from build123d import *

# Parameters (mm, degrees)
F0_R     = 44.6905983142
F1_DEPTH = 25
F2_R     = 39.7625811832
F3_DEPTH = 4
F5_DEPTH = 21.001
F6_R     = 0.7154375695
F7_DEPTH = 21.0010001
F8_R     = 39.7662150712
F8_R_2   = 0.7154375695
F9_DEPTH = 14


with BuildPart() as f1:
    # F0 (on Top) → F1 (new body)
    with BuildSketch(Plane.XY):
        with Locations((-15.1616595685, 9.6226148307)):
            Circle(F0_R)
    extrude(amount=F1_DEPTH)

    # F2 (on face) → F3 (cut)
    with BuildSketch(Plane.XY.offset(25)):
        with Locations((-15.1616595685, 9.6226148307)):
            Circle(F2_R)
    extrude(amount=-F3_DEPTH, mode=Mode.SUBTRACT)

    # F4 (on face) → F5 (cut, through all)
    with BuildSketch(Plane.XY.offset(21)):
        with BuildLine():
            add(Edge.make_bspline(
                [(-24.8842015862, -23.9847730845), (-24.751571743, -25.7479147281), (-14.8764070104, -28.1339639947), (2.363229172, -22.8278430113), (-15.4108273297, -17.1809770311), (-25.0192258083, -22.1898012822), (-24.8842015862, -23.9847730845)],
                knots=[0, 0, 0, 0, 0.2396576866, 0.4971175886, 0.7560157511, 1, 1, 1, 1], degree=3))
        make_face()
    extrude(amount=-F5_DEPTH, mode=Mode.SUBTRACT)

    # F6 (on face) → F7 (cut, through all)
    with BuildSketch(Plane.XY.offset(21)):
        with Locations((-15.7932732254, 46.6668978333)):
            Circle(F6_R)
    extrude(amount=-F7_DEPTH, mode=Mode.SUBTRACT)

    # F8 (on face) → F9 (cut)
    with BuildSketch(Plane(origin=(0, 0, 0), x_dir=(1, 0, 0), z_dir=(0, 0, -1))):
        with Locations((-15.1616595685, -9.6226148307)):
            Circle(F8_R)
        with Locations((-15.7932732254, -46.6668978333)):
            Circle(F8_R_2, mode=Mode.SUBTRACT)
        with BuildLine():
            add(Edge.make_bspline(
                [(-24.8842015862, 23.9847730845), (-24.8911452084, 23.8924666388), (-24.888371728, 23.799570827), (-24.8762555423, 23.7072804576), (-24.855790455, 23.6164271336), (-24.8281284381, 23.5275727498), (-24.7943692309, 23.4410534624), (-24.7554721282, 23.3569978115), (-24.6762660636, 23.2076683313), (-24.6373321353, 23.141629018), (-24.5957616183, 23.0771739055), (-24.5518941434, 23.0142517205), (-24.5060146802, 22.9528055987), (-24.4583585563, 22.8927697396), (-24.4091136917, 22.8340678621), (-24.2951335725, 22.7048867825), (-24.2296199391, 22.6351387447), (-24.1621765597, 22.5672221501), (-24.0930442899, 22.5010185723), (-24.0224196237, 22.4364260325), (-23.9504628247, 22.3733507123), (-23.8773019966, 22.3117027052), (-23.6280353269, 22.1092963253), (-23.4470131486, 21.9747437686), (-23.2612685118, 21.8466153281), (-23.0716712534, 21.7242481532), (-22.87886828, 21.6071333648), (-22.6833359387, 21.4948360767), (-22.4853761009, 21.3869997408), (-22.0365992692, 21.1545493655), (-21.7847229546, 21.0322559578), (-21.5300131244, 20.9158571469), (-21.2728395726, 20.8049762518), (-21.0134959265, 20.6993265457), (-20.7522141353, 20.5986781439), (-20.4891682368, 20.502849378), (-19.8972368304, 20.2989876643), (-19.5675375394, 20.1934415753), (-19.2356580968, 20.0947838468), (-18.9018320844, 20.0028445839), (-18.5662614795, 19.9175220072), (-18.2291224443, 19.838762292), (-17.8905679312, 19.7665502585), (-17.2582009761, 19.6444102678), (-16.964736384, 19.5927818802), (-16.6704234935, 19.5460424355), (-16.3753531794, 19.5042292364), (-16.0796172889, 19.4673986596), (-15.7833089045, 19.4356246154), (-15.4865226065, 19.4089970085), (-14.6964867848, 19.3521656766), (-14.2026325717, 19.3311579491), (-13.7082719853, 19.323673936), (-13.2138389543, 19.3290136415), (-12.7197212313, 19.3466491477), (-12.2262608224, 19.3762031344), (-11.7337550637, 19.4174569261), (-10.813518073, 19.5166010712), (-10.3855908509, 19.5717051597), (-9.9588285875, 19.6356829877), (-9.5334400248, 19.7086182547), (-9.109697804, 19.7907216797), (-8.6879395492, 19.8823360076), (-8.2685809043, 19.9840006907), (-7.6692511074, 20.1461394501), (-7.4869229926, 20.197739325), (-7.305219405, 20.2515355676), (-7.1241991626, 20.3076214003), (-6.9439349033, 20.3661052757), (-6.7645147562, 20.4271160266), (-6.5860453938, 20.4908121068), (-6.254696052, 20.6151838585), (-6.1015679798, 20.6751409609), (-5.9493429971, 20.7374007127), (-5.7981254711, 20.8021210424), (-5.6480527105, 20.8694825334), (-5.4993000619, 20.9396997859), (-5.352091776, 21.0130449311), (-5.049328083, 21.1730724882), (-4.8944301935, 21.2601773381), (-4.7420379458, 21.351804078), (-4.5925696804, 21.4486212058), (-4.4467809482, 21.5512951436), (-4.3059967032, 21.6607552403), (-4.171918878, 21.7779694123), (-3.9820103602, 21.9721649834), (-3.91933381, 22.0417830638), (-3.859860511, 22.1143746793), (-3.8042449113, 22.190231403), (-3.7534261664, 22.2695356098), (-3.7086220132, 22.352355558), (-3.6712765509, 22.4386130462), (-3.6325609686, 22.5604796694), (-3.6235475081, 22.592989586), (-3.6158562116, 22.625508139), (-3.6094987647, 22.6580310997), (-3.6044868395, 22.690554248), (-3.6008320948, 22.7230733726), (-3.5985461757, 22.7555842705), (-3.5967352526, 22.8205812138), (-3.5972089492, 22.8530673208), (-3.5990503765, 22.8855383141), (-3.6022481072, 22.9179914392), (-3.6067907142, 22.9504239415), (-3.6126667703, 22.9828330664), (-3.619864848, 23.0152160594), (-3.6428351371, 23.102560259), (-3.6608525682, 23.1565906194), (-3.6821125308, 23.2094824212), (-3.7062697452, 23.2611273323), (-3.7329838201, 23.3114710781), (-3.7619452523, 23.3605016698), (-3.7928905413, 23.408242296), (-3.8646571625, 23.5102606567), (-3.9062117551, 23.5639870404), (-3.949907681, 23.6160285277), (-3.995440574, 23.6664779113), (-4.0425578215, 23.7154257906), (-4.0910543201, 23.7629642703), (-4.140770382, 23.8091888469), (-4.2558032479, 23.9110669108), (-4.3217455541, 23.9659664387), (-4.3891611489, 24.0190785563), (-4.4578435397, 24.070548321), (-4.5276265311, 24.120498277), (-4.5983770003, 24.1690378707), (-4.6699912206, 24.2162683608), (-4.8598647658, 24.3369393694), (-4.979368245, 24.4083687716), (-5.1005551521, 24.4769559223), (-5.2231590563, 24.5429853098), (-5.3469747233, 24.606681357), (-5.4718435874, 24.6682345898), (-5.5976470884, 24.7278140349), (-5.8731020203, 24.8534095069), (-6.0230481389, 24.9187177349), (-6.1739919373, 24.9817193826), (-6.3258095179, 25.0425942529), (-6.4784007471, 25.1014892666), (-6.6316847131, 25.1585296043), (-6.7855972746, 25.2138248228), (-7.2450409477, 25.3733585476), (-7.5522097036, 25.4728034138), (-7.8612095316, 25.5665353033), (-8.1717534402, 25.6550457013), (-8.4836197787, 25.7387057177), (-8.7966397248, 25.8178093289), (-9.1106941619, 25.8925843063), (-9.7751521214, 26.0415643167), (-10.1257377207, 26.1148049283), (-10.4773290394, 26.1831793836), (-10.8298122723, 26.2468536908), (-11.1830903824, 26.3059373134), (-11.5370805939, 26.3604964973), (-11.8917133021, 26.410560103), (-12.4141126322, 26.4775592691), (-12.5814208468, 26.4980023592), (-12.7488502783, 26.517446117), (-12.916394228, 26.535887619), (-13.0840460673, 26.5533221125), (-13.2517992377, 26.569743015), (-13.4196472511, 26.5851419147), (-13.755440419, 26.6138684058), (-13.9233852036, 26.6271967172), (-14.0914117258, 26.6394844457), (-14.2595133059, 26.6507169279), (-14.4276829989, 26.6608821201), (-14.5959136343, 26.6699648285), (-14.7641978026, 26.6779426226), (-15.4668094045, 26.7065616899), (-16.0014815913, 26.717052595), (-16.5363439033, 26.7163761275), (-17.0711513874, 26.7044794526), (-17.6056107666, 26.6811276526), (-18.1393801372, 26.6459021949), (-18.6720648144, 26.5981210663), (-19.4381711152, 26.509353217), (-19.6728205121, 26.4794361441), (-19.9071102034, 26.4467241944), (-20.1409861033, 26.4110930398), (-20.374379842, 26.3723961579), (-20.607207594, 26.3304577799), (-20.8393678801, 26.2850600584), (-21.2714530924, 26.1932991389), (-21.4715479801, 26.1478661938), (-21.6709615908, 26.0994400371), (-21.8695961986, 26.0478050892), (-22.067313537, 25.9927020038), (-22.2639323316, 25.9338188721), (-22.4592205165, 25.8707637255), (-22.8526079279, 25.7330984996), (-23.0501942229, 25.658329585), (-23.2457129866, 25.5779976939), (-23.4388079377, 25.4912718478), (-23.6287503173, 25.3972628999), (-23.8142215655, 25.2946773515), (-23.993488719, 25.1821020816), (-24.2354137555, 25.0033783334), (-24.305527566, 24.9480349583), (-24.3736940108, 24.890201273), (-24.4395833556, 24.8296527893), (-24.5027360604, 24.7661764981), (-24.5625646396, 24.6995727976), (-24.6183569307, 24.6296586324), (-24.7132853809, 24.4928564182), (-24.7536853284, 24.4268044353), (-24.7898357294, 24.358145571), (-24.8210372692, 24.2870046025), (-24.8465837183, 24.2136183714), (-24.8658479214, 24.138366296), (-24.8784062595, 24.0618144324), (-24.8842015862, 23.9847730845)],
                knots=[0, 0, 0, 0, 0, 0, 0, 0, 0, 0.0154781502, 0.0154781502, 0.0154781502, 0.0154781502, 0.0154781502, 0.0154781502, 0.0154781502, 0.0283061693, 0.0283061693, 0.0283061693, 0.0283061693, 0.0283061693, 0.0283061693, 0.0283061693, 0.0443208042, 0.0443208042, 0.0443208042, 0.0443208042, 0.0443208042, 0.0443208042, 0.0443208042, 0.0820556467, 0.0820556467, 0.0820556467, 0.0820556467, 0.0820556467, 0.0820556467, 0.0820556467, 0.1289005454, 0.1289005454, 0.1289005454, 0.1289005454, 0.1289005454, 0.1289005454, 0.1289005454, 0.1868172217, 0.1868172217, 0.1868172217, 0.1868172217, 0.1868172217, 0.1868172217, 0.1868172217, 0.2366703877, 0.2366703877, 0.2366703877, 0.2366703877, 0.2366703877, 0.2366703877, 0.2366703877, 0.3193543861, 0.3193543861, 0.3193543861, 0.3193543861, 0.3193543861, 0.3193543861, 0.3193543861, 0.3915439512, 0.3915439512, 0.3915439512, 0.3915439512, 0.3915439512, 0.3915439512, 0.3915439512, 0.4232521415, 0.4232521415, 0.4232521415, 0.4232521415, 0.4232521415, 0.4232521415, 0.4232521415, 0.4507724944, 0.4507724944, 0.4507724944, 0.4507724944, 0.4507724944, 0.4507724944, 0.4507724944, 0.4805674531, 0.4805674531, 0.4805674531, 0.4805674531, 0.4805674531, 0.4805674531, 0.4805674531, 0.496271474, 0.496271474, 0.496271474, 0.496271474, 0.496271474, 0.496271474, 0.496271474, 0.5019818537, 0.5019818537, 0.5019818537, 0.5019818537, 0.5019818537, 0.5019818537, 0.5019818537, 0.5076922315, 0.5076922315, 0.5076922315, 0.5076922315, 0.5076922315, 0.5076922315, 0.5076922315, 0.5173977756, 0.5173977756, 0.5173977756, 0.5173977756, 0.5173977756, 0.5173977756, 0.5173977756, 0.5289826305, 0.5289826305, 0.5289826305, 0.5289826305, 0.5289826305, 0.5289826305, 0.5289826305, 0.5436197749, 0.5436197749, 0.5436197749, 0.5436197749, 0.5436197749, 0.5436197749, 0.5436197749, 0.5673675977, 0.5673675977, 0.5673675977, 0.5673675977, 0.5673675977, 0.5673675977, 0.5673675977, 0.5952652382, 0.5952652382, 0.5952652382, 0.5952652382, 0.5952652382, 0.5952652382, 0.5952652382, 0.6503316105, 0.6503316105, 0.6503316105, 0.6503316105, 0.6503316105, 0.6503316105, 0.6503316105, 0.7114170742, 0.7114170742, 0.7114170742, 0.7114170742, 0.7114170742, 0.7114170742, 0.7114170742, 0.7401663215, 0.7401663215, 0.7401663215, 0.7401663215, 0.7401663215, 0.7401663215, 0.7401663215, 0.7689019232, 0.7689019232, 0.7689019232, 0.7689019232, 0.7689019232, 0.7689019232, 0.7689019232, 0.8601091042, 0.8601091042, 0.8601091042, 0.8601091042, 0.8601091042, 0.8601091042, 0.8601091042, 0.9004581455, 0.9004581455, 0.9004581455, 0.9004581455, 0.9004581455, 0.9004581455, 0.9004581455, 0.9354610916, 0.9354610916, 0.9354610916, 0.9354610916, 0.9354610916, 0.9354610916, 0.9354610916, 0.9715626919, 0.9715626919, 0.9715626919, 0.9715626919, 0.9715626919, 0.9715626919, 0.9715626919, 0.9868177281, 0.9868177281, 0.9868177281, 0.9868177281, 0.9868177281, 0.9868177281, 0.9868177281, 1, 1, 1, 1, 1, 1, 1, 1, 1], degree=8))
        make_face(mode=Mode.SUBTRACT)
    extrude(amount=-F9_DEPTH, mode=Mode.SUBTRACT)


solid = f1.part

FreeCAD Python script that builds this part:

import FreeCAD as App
import Part
import Sketcher

V = App.Vector
Q = App.Units.Quantity

doc = App.newDocument("Part")
body = doc.addObject("PartDesign::Body", "Body")

# Sketch on XY plane
sketch1 = body.newObject("Sketcher::SketchObject", "Sketch")
sketch1.AttachmentSupport = (doc.getObject("XY_Plane"), [""])
sketch1.MapMode = "FlatFace"
sketch1.addGeometry(Part.Circle(V(-15.16166, 9.622615, 0), V(0, 0, 1), 44.690598), False)
sketch1.addConstraint([
    Sketcher.Constraint("Diameter", 0, Q("89.381197 mm")),
    Sketcher.Constraint("DistanceX", 0, 3, -1, 1, Q("15.16166 mm")),
    Sketcher.Constraint("DistanceY", -1, 1, 0, 3, Q("9.622615 mm")),
])
pad1 = body.newObject("PartDesign::Pad", "Pad")
pad1.Profile = sketch1
pad1.Length = 25

# Sketch on XY plane
sketch2 = body.newObject("Sketcher::SketchObject", "Sketch001")
sketch2.AttachmentSupport = (doc.getObject("XY_Plane"), [""])
sketch2.MapMode = "FlatFace"
sketch2.AttachmentOffset = App.Placement(V(0, 0, 25), App.Rotation())
sketch2.addGeometry(Part.Circle(V(-15.16166, 9.622615, 0), V(0, 0, 1), 39.762581), False)
sketch2.addConstraint([
    Sketcher.Constraint("Diameter", 0, Q("79.525162 mm")),
    Sketcher.Constraint("DistanceX", 0, 3, -1, 1, Q("15.16166 mm")),
    Sketcher.Constraint("DistanceY", -1, 1, 0, 3, Q("9.622615 mm")),
])
pocket1 = body.newObject("PartDesign::Pocket", "Pocket")
pocket1.Profile = sketch2
pocket1.Length = 4

# Sketch on XY plane
sketch3 = body.newObject("Sketcher::SketchObject", "Sketch002")
sketch3.AttachmentSupport = (doc.getObject("XY_Plane"), [""])
sketch3.MapMode = "FlatFace"
sketch3.AttachmentOffset = App.Placement(V(0, 0, 21), App.Rotation())
sketch3.addGeometry(Part.BSplineCurve([V(-24.884202, -23.984773, 0), V(-24.751572, -25.747915, 0), V(-14.876407, -28.133964, 0), V(2.363229, -22.827843, 0), V(-15.410827, -17.180977, 0), V(-25.019226, -22.189801, 0), V(-24.884202, -23.984773, 0)], [4, 1, 1, 1, 4], [0, 0.239657687, 0.497117589, 0.756015751, 1], False, 3, [1, 1, 1, 1, 1, 1, 1], False), False)
sketch3.addConstraint(Sketcher.Constraint("Block", 0))
pocket2 = body.newObject("PartDesign::Pocket", "Pocket001")
pocket2.Profile = sketch3
pocket2.Type = "ThroughAll"

# Sketch on XY plane
sketch4 = body.newObject("Sketcher::SketchObject", "Sketch003")
sketch4.AttachmentSupport = (doc.getObject("XY_Plane"), [""])
sketch4.MapMode = "FlatFace"
sketch4.AttachmentOffset = App.Placement(V(0, 0, 21), App.Rotation())
sketch4.addGeometry(Part.Circle(V(-15.793273, 46.666898, 0), V(0, 0, 1), 0.715438), False)
sketch4.addConstraint([
    Sketcher.Constraint("Diameter", 0, Q("1.430875 mm")),
    Sketcher.Constraint("DistanceX", 0, 3, -1, 1, Q("15.793273 mm")),
    Sketcher.Constraint("DistanceY", -1, 1, 0, 3, Q("46.666898 mm")),
])
pocket3 = body.newObject("PartDesign::Pocket", "Pocket002")
pocket3.Profile = sketch4
pocket3.Type = "ThroughAll"

# Sketch on XY plane
sketch5 = body.newObject("Sketcher::SketchObject", "Sketch004")
sketch5.AttachmentSupport = (doc.getObject("XY_Plane"), [""])
sketch5.MapMode = "FlatFace"
sketch5.addGeometry([
    Part.Circle(V(-15.16166, 9.622615, 0), V(0, 0, 1), 39.766215),
    Part.Circle(V(-15.793273, 46.666898, 0), V(0, 0, 1), 0.715438),
    Part.BSplineCurve([V(-24.884202, -23.984773, 0), V(-24.891145, -23.892467, 0), V(-24.888372, -23.799571, 0), V(-24.876256, -23.70728, 0), V(-24.85579, -23.616427, 0), V(-24.828128, -23.527573, 0), V(-24.794369, -23.441053, 0), V(-24.755472, -23.356998, 0), V(-24.676266, -23.207668, 0), V(-24.637332, -23.141629, 0), V(-24.595762, -23.077174, 0), V(-24.551894, -23.014252, 0), V(-24.506015, -22.952806, 0), V(-24.458359, -22.89277, 0), V(-24.409114, -22.834068, 0), V(-24.295134, -22.704887, 0), V(-24.22962, -22.635139, 0), V(-24.162177, -22.567222, 0), V(-24.093044, -22.501019, 0), V(-24.02242, -22.436426, 0), V(-23.950463, -22.373351, 0), V(-23.877302, -22.311703, 0), V(-23.628035, -22.109296, 0), V(-23.447013, -21.974744, 0), V(-23.261269, -21.846615, 0), V(-23.071671, -21.724248, 0), V(-22.878868, -21.607133, 0), V(-22.683336, -21.494836, 0), V(-22.485376, -21.387, 0), V(-22.036599, -21.154549, 0), V(-21.784723, -21.032256, 0), V(-21.530013, -20.915857, 0), V(-21.27284, -20.804976, 0), V(-21.013496, -20.699327, 0), V(-20.752214, -20.598678, 0), V(-20.489168, -20.502849, 0), V(-19.897237, -20.298988, 0), V(-19.567538, -20.193442, 0), V(-19.235658, -20.094784, 0), V(-18.901832, -20.002845, 0), V(-18.566261, -19.917522, 0), V(-18.229122, -19.838762, 0), V(-17.890568, -19.76655, 0), V(-17.258201, -19.64441, 0), V(-16.964736, -19.592782, 0), V(-16.670423, -19.546042, 0), V(-16.375353, -19.504229, 0), V(-16.079617, -19.467399, 0), V(-15.783309, -19.435625, 0), V(-15.486523, -19.408997, 0), V(-14.696487, -19.352166, 0), V(-14.202633, -19.331158, 0), V(-13.708272, -19.323674, 0), V(-13.213839, -19.329014, 0), V(-12.719721, -19.346649, 0), V(-12.226261, -19.376203, 0), V(-11.733755, -19.417457, 0), V(-10.813518, -19.516601, 0), V(-10.385591, -19.571705, 0), V(-9.958829, -19.635683, 0), V(-9.53344, -19.708618, 0), V(-9.109698, -19.790722, 0), V(-8.68794, -19.882336, 0), V(-8.268581, -19.984001, 0), V(-7.669251, -20.146139, 0), V(-7.486923, -20.197739, 0), V(-7.305219, -20.251536, 0), V(-7.124199, -20.307621, 0), V(-6.943935, -20.366105, 0), V(-6.764515, -20.427116, 0), V(-6.586045, -20.490812, 0), V(-6.254696, -20.615184, 0), V(-6.101568, -20.675141, 0), V(-5.949343, -20.737401, 0), V(-5.798125, -20.802121, 0), V(-5.648053, -20.869483, 0), V(-5.4993, -20.9397, 0), V(-5.352092, -21.013045, 0), V(-5.049328, -21.173072, 0), V(-4.89443, -21.260177, 0), V(-4.742038, -21.351804, 0), V(-4.59257, -21.448621, 0), V(-4.446781, -21.551295, 0), V(-4.305997, -21.660755, 0), V(-4.171919, -21.777969, 0), V(-3.98201, -21.972165, 0), V(-3.919334, -22.041783, 0), V(-3.859861, -22.114375, 0), V(-3.804245, -22.190231, 0), V(-3.753426, -22.269536, 0), V(-3.708622, -22.352356, 0), V(-3.671277, -22.438613, 0), V(-3.632561, -22.56048, 0), V(-3.623548, -22.59299, 0), V(-3.615856, -22.625508, 0), V(-3.609499, -22.658031, 0), V(-3.604487, -22.690554, 0), V(-3.600832, -22.723073, 0), V(-3.598546, -22.755584, 0), V(-3.596735, -22.820581, 0), V(-3.597209, -22.853067, 0), V(-3.59905, -22.885538, 0), V(-3.602248, -22.917991, 0), V(-3.606791, -22.950424, 0), V(-3.612667, -22.982833, 0), V(-3.619865, -23.015216, 0), V(-3.642835, -23.10256, 0), V(-3.660853, -23.156591, 0), V(-3.682113, -23.209482, 0), V(-3.70627, -23.261127, 0), V(-3.732984, -23.311471, 0), V(-3.761945, -23.360502, 0), V(-3.792891, -23.408242, 0), V(-3.864657, -23.510261, 0), V(-3.906212, -23.563987, 0), V(-3.949908, -23.616029, 0), V(-3.995441, -23.666478, 0), V(-4.042558, -23.715426, 0), V(-4.091054, -23.762964, 0), V(-4.14077, -23.809189, 0), V(-4.255803, -23.911067, 0), V(-4.321746, -23.965966, 0), V(-4.389161, -24.019079, 0), V(-4.457844, -24.070548, 0), V(-4.527627, -24.120498, 0), V(-4.598377, -24.169038, 0), V(-4.669991, -24.216268, 0), V(-4.859865, -24.336939, 0), V(-4.979368, -24.408369, 0), V(-5.100555, -24.476956, 0), V(-5.223159, -24.542985, 0), V(-5.346975, -24.606681, 0), V(-5.471844, -24.668235, 0), V(-5.597647, -24.727814, 0), V(-5.873102, -24.85341, 0), V(-6.023048, -24.918718, 0), V(-6.173992, -24.981719, 0), V(-6.32581, -25.042594, 0), V(-6.478401, -25.101489, 0), V(-6.631685, -25.15853, 0), V(-6.785597, -25.213825, 0), V(-7.245041, -25.373359, 0), V(-7.55221, -25.472803, 0), V(-7.86121, -25.566535, 0), V(-8.171753, -25.655046, 0), V(-8.48362, -25.738706, 0), V(-8.79664, -25.817809, 0), V(-9.110694, -25.892584, 0), V(-9.775152, -26.041564, 0), V(-10.125738, -26.114805, 0), V(-10.477329, -26.183179, 0), V(-10.829812, -26.246854, 0), V(-11.18309, -26.305937, 0), V(-11.537081, -26.360496, 0), V(-11.891713, -26.41056, 0), V(-12.414113, -26.477559, 0), V(-12.581421, -26.498002, 0), V(-12.74885, -26.517446, 0), V(-12.916394, -26.535888, 0), V(-13.084046, -26.553322, 0), V(-13.251799, -26.569743, 0), V(-13.419647, -26.585142, 0), V(-13.75544, -26.613868, 0), V(-13.923385, -26.627197, 0), V(-14.091412, -26.639484, 0), V(-14.259513, -26.650717, 0), V(-14.427683, -26.660882, 0), V(-14.595914, -26.669965, 0), V(-14.764198, -26.677943, 0), V(-15.466809, -26.706562, 0), V(-16.001482, -26.717053, 0), V(-16.536344, -26.716376, 0), V(-17.071151, -26.704479, 0), V(-17.605611, -26.681128, 0), V(-18.13938, -26.645902, 0), V(-18.672065, -26.598121, 0), V(-19.438171, -26.509353, 0), V(-19.672821, -26.479436, 0), V(-19.90711, -26.446724, 0), V(-20.140986, -26.411093, 0), V(-20.37438, -26.372396, 0), V(-20.607208, -26.330458, 0), V(-20.839368, -26.28506, 0), V(-21.271453, -26.193299, 0), V(-21.471548, -26.147866, 0), V(-21.670962, -26.09944, 0), V(-21.869596, -26.047805, 0), V(-22.067314, -25.992702, 0), V(-22.263932, -25.933819, 0), V(-22.459221, -25.870764, 0), V(-22.852608, -25.733099, 0), V(-23.050194, -25.65833, 0), V(-23.245713, -25.577998, 0), V(-23.438808, -25.491272, 0), V(-23.62875, -25.397263, 0), V(-23.814222, -25.294677, 0), V(-23.993489, -25.182102, 0), V(-24.235414, -25.003378, 0), V(-24.305528, -24.948035, 0), V(-24.373694, -24.890201, 0), V(-24.439583, -24.829653, 0), V(-24.502736, -24.766176, 0), V(-24.562565, -24.699573, 0), V(-24.618357, -24.629659, 0), V(-24.713285, -24.492856, 0), V(-24.753685, -24.426804, 0), V(-24.789836, -24.358146, 0), V(-24.821037, -24.287005, 0), V(-24.846584, -24.213618, 0), V(-24.865848, -24.138366, 0), V(-24.878406, -24.061814, 0), V(-24.884202, -23.984773, 0)], [9, 7, 7, 7, 7, 7, 7, 7, 7, 7, 7, 7, 7, 7, 7, 7, 7, 7, 7, 7, 7, 7, 7, 7, 7, 7, 7, 7, 7, 7, 9], [0, 0.01547815, 0.028306169, 0.044320804, 0.082055647, 0.128900545, 0.186817222, 0.236670388, 0.319354386, 0.391543951, 0.423252142, 0.450772494, 0.480567453, 0.496271474, 0.501981854, 0.507692231, 0.517397776, 0.528982631, 0.543619775, 0.567367598, 0.595265238, 0.65033161, 0.711417074, 0.740166321, 0.768901923, 0.860109104, 0.900458146, 0.935461092, 0.971562692, 0.986817728, 1], False, 8, [1, 1, 1, 1, 1, 1, 1, 1, 1, 1, 1, 1, 1, 1, 1, 1, 1, 1, 1, 1, 1, 1, 1, 1, 1, 1, 1, 1, 1, 1, 1, 1, 1, 1, 1, 1, 1, 1, 1, 1, 1, 1, 1, 1, 1, 1, 1, 1, 1, 1, 1, 1, 1, 1, 1, 1, 1, 1, 1, 1, 1, 1, 1, 1, 1, 1, 1, 1, 1, 1, 1, 1, 1, 1, 1, 1, 1, 1, 1, 1, 1, 1, 1, 1, 1, 1, 1, 1, 1, 1, 1, 1, 1, 1, 1, 1, 1, 1, 1, 1, 1, 1, 1, 1, 1, 1, 1, 1, 1, 1, 1, 1, 1, 1, 1, 1, 1, 1, 1, 1, 1, 1, 1, 1, 1, 1, 1, 1, 1, 1, 1, 1, 1, 1, 1, 1, 1, 1, 1, 1, 1, 1, 1, 1, 1, 1, 1, 1, 1, 1, 1, 1, 1, 1, 1, 1, 1, 1, 1, 1, 1, 1, 1, 1, 1, 1, 1, 1, 1, 1, 1, 1, 1, 1, 1, 1, 1, 1, 1, 1, 1, 1, 1, 1, 1, 1, 1, 1, 1, 1, 1, 1, 1, 1, 1, 1, 1, 1, 1, 1, 1, 1, 1, 1, 1, 1, 1, 1, 1, 1, 1, 1], False),
], False)
sketch5.addConstraint([
    Sketcher.Constraint("Block", 2),
    Sketcher.Constraint("Diameter", 0, Q("79.53243 mm")),
    Sketcher.Constraint("Diameter", 1, Q("1.430875 mm")),
    Sketcher.Constraint("DistanceX", 0, 3, -1, 1, Q("15.16166 mm")),
    Sketcher.Constraint("DistanceY", -1, 1, 0, 3, Q("9.622615 mm")),
    Sketcher.Constraint("DistanceX", 1, 3, -1, 1, Q("15.793273 mm")),
    Sketcher.Constraint("DistanceY", -1, 1, 1, 3, Q("46.666898 mm")),
])
pocket4 = body.newObject("PartDesign::Pocket", "Pocket003")
pocket4.Profile = sketch5
pocket4.Length = 14
pocket4.Reversed = True

doc.recompute()
